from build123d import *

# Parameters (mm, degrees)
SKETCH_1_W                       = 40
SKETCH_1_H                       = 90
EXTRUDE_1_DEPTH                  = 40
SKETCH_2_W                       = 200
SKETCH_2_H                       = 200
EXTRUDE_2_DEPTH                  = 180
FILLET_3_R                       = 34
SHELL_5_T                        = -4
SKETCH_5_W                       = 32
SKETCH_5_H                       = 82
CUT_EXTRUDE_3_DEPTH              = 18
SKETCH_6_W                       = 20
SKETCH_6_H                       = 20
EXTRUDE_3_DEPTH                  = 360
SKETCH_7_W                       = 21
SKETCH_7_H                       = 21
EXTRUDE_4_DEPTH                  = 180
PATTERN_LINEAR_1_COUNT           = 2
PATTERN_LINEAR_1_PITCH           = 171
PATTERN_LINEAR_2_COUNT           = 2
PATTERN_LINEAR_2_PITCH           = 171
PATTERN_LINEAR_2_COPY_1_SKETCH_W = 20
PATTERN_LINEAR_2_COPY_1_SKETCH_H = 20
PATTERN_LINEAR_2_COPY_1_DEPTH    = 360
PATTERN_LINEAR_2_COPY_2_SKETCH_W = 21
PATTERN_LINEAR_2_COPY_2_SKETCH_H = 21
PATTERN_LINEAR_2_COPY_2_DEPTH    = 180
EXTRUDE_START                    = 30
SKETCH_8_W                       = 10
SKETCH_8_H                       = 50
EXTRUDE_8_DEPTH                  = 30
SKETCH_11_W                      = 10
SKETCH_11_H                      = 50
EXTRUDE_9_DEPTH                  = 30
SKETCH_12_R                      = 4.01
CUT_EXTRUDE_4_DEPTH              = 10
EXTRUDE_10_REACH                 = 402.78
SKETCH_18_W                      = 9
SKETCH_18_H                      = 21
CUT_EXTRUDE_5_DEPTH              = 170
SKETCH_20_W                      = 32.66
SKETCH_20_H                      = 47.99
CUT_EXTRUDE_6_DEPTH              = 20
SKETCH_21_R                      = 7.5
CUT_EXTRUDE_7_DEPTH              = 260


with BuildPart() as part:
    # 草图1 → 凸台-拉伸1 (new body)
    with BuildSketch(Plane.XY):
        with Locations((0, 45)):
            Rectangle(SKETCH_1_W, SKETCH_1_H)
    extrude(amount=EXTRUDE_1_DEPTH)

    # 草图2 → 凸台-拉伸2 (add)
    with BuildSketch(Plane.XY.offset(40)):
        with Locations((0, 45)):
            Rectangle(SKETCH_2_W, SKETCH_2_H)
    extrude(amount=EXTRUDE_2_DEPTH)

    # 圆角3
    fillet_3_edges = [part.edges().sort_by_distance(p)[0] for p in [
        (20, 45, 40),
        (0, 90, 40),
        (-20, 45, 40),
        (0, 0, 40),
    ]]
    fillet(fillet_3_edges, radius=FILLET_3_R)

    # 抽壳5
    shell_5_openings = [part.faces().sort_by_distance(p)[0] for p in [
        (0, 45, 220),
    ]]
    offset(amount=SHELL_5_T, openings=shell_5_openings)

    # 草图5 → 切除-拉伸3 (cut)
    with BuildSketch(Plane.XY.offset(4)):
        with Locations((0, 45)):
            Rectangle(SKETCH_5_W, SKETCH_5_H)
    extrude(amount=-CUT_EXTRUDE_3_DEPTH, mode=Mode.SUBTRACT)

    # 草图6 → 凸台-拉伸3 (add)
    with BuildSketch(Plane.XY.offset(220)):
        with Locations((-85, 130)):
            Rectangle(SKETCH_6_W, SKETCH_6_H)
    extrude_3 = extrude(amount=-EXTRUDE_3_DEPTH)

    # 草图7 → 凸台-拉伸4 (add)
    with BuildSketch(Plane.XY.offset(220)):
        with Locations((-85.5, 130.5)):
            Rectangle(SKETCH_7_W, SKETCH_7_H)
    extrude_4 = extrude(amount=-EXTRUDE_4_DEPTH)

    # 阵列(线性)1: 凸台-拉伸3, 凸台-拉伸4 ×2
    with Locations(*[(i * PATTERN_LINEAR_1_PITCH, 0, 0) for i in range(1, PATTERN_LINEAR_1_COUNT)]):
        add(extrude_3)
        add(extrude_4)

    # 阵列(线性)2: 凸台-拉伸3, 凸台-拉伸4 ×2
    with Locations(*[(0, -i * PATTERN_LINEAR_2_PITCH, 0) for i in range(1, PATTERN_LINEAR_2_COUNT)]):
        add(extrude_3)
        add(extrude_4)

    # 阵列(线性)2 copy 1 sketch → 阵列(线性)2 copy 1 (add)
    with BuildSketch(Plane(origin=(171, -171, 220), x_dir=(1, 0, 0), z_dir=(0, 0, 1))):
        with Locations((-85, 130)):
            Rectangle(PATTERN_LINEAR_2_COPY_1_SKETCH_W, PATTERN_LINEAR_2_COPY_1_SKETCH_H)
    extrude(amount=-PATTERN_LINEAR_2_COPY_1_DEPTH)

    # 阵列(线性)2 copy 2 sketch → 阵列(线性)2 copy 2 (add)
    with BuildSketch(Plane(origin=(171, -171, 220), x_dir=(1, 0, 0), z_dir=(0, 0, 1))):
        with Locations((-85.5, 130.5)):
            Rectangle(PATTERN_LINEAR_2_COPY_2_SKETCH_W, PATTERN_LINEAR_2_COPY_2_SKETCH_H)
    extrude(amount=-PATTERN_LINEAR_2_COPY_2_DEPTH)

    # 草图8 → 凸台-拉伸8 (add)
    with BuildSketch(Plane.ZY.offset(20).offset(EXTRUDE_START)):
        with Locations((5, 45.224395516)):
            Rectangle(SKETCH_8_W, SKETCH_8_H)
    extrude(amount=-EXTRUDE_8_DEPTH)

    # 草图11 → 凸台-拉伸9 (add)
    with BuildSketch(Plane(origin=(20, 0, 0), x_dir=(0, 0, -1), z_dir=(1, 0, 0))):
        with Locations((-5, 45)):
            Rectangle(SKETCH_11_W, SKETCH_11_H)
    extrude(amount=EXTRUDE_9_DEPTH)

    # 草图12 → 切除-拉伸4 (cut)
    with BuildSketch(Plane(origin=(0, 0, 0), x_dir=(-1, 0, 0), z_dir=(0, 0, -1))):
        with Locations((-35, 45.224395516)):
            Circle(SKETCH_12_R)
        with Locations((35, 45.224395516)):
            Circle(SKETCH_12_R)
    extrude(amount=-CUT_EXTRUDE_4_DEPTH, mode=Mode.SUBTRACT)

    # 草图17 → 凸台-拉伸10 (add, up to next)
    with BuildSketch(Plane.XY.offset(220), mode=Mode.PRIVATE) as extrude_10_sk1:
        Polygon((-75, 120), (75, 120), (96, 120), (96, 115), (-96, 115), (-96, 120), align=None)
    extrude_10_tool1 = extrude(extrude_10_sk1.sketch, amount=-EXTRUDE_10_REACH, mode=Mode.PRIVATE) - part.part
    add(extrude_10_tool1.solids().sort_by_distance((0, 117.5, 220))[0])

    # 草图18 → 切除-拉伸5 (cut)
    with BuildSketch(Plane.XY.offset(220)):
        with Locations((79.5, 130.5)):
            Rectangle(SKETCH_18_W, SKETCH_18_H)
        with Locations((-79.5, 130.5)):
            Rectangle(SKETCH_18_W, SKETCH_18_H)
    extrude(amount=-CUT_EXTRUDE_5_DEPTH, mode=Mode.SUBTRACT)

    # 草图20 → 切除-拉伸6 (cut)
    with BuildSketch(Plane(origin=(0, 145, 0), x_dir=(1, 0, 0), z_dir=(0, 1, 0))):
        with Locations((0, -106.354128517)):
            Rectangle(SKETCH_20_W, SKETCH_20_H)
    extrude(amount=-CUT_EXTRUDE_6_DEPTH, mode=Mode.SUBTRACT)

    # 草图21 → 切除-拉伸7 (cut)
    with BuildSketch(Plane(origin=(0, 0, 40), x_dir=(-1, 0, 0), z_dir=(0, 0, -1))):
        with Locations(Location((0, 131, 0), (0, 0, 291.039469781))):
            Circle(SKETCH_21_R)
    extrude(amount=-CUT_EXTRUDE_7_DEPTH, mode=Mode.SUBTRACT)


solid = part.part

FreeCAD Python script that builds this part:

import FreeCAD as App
import Part
import Sketcher


def edges_at(feature, points):
    """Names of the edges that pass closest to the given points."""
    edges = feature.Shape.Edges
    near = lambda p: min(range(len(edges)), key=lambda i: edges[i].distToShape(Part.Vertex(*p))[0])
    return sorted({f"Edge{near(p) + 1}" for p in points})


def faces_at(feature, points):
    """Names of the faces that lie closest to the given points."""
    faces = feature.Shape.Faces
    near = lambda p: min(range(len(faces)), key=lambda i: faces[i].distToShape(Part.Vertex(*p))[0])
    return sorted({f"Face{near(p) + 1}" for p in points})

doc = App.newDocument("Part")
body = doc.addObject("PartDesign::Body", "Body")

# Sketch on XY plane
sketch1 = body.newObject("Sketcher::SketchObject", "Sketch")
sketch1.AttachmentSupport = (doc.getObject("XY_Plane"), [""])
sketch1.MapMode = "FlatFace"
sketch1.addGeometry([
    Part.LineSegment(App.Vector(-20, 90, 0), App.Vector(-20, 0, 0)),
    Part.LineSegment(App.Vector(-20, 0, 0), App.Vector(20, 0, 0)),
    Part.LineSegment(App.Vector(20, 0, 0), App.Vector(20, 90, 0)),
    Part.LineSegment(App.Vector(20, 90, 0), App.Vector(-20, 90, 0)),
], False)
sketch1.addConstraint([
    Sketcher.Constraint("Coincident", 0, 2, 1, 1),
    Sketcher.Constraint("Coincident", 1, 2, 2, 1),
    Sketcher.Constraint("Coincident", 2, 2, 3, 1),
    Sketcher.Constraint("Coincident", 3, 2, 0, 1),
    Sketcher.Constraint("Vertical", 0),
    Sketcher.Constraint("Horizontal", 1),
    Sketcher.Constraint("Vertical", 2),
    Sketcher.Constraint("Horizontal", 3),
    Sketcher.Constraint("Symmetric", 0, 2, 1, 2, -1, 1),
    Sketcher.Constraint("DistanceX", 1, 1, 1, 2, 40.0),
    Sketcher.Constraint("DistanceY", 0, 2, 0, 1, 90.0),
])
pad1 = body.newObject("PartDesign::Pad", "Pad")
pad1.Profile = sketch1
pad1.Length = 40

# Sketch on XY plane
sketch2 = body.newObject("Sketcher::SketchObject", "Sketch001")
sketch2.AttachmentSupport = (doc.getObject("XY_Plane"), [""])
sketch2.MapMode = "FlatFace"
sketch2.AttachmentOffset = App.Placement(App.Vector(0, 0, 40), App.Rotation())
sketch2.addGeometry([
    Part.LineSegment(App.Vector(-100, 145, 0), App.Vector(-100, -55, 0)),
    Part.LineSegment(App.Vector(-100, -55, 0), App.Vector(100, -55, 0)),
    Part.LineSegment(App.Vector(100, -55, 0), App.Vector(100, 145, 0)),
    Part.LineSegment(App.Vector(100, 145, 0), App.Vector(-100, 145, 0)),
], False)
sketch2.addConstraint([
    Sketcher.Constraint("Coincident", 0, 2, 1, 1),
    Sketcher.Constraint("Coincident", 1, 2, 2, 1),
    Sketcher.Constraint("Coincident", 2, 2, 3, 1),
    Sketcher.Constraint("Coincident", 3, 2, 0, 1),
    Sketcher.Constraint("Vertical", 0),
    Sketcher.Constraint("Horizontal", 1),
    Sketcher.Constraint("Vertical", 2),
    Sketcher.Constraint("Horizontal", 3),
    Sketcher.Constraint("Equal", 3, 0),
    Sketcher.Constraint("DistanceX", 1, 1, 1, 2, 200.0),
    Sketcher.Constraint("DistanceX", 0, 2, -1, 1, 100.0),
    Sketcher.Constraint("DistanceY", 0, 2, -1, 1, 55.0),
])
pad2 = body.newObject("PartDesign::Pad", "Pad001")
pad2.Profile = sketch2
pad2.Length = 180
doc.recompute()

fillet = body.newObject("PartDesign::Fillet", "Fillet")
fillet.Base = (pad2, edges_at(pad2, [
    (20, 45, 40),
    (0, 90, 40),
    (-20, 45, 40),
    (0, 0, 40),
]))
fillet.Radius = 34
doc.recompute()

thickness = body.newObject("PartDesign::Thickness", "Thickness")
thickness.Base = (fillet, faces_at(fillet, [(0, 45, 220)]))
thickness.Value = 4
thickness.Reversed = True
thickness.Join = "Arc"

# Sketch on XY plane
sketch3 = body.newObject("Sketcher::SketchObject", "Sketch002")
sketch3.AttachmentSupport = (doc.getObject("XY_Plane"), [""])
sketch3.MapMode = "FlatFace"
sketch3.AttachmentOffset = App.Placement(App.Vector(0, 0, 4), App.Rotation())
sketch3.addGeometry([
    Part.LineSegment(App.Vector(-16, 86, 0), App.Vector(-16, 4, 0)),
    Part.LineSegment(App.Vector(-16, 4, 0), App.Vector(16, 4, 0)),
    Part.LineSegment(App.Vector(16, 4, 0), App.Vector(16, 86, 0)),
    Part.LineSegment(App.Vector(16, 86, 0), App.Vector(-16, 86, 0)),
], False)
sketch3.addConstraint([
    Sketcher.Constraint("Coincident", 0, 2, 1, 1),
    Sketcher.Constraint("Coincident", 1, 2, 2, 1),
    Sketcher.Constraint("Coincident", 2, 2, 3, 1),
    Sketcher.Constraint("Coincident", 3, 2, 0, 1),
    Sketcher.Constraint("Vertical", 0),
    Sketcher.Constraint("Horizontal", 1),
    Sketcher.Constraint("Vertical", 2),
    Sketcher.Constraint("Horizontal", 3),
    Sketcher.Constraint("DistanceX", 1, 1, 1, 2, 32.0),
    Sketcher.Constraint("DistanceY", 0, 2, 0, 1, 82.0),
    Sketcher.Constraint("DistanceX", 0, 2, -1, 1, 16.0),
    Sketcher.Constraint("DistanceY", -1, 1, 0, 2, 4.0),
])
pocket1 = body.newObject("PartDesign::Pocket", "Pocket")
pocket1.Profile = sketch3
pocket1.Length = 18

# Sketch on XY plane
sketch4 = body.newObject("Sketcher::SketchObject", "Sketch003")
sketch4.AttachmentSupport = (doc.getObject("XY_Plane"), [""])
sketch4.MapMode = "FlatFace"
sketch4.AttachmentOffset = App.Placement(App.Vector(0, 0, 220), App.Rotation())
sketch4.addGeometry([
    Part.LineSegment(App.Vector(-95, 140, 0), App.Vector(-95, 120, 0)),
    Part.LineSegment(App.Vector(-95, 120, 0), App.Vector(-75, 120, 0)),
    Part.LineSegment(App.Vector(-75, 120, 0), App.Vector(-75, 140, 0)),
    Part.LineSegment(App.Vector(-75, 140, 0), App.Vector(-95, 140, 0)),
], False)
sketch4.addConstraint([
    Sketcher.Constraint("Coincident", 0, 2, 1, 1),
    Sketcher.Constraint("Coincident", 1, 2, 2, 1),
    Sketcher.Constraint("Coincident", 2, 2, 3, 1),
    Sketcher.Constraint("Coincident", 3, 2, 0, 1),
    Sketcher.Constraint("Vertical", 0),
    Sketcher.Constraint("Horizontal", 1),
    Sketcher.Constraint("Vertical", 2),
    Sketcher.Constraint("Horizontal", 3),
    Sketcher.Constraint("Equal", 3, 0),
    Sketcher.Constraint("DistanceX", 1, 1, 1, 2, 20.0),
    Sketcher.Constraint("DistanceX", 0, 2, -1, 1, 95.0),
    Sketcher.Constraint("DistanceY", -1, 1, 0, 2, 120.0),
])
pad3 = body.newObject("PartDesign::Pad", "Pad002")
pad3.Profile = sketch4
pad3.Length = 360
pad3.Reversed = True

# Sketch on XY plane
sketch5 = body.newObject("Sketcher::SketchObject", "Sketch004")
sketch5.AttachmentSupport = (doc.getObject("XY_Plane"), [""])
sketch5.MapMode = "FlatFace"
sketch5.AttachmentOffset = App.Placement(App.Vector(0, 0, 220), App.Rotation())
sketch5.addGeometry([
    Part.LineSegment(App.Vector(-96, 141, 0), App.Vector(-96, 120, 0)),
    Part.LineSegment(App.Vector(-96, 120, 0), App.Vector(-75, 120, 0)),
    Part.LineSegment(App.Vector(-75, 120, 0), App.Vector(-75, 141, 0)),
    Part.LineSegment(App.Vector(-75, 141, 0), App.Vector(-96, 141, 0)),
], False)
sketch5.addConstraint([
    Sketcher.Constraint("Coincident", 0, 2, 1, 1),
    Sketcher.Constraint("Coincident", 1, 2, 2, 1),
    Sketcher.Constraint("Coincident", 2, 2, 3, 1),
    Sketcher.Constraint("Coincident", 3, 2, 0, 1),
    Sketcher.Constraint("Vertical", 0),
    Sketcher.Constraint("Horizontal", 1),
    Sketcher.Constraint("Vertical", 2),
    Sketcher.Constraint("Horizontal", 3),
    Sketcher.Constraint("Equal", 3, 0),
    Sketcher.Constraint("DistanceX", 1, 1, 1, 2, 21.0),
    Sketcher.Constraint("DistanceX", 0, 2, -1, 1, 96.0),
    Sketcher.Constraint("DistanceY", -1, 1, 0, 2, 120.0),
])
pad4 = body.newObject("PartDesign::Pad", "Pad003")
pad4.Profile = sketch5
pad4.Length = 180
pad4.Reversed = True
doc.recompute()

linearpattern = body.newObject("PartDesign::LinearPattern", "LinearPattern")
linearpattern.Originals = [pad3, pad4]
linearpattern.Direction = (doc.getObject("X_Axis"), [""])
linearpattern.Mode = "offset"
linearpattern.Offset = 171
linearpattern.Occurrences = 2
body.Tip = linearpattern
doc.recompute()

linearpattern2 = body.newObject("PartDesign::LinearPattern", "LinearPattern001")
linearpattern2.Originals = [pad3, pad4]
linearpattern2.Direction = (doc.getObject("Y_Axis"), [""])
linearpattern2.Mode = "offset"
linearpattern2.Offset = 171
linearpattern2.Occurrences = 2
linearpattern2.Reversed = True
body.Tip = linearpattern2

# Sketch on XY plane
sketch6 = body.newObject("Sketcher::SketchObject", "Sketch005")
sketch6.AttachmentSupport = (doc.getObject("XY_Plane"), [""])
sketch6.MapMode = "FlatFace"
sketch6.AttachmentOffset = App.Placement(App.Vector(0, 0, 220), App.Rotation())
sketch6.addGeometry([
    Part.LineSegment(App.Vector(76, -31, 0), App.Vector(76, -51, 0)),
    Part.LineSegment(App.Vector(76, -51, 0), App.Vector(96, -51, 0)),
    Part.LineSegment(App.Vector(96, -51, 0), App.Vector(96, -31, 0)),
    Part.LineSegment(App.Vector(96, -31, 0), App.Vector(76, -31, 0)),
], False)
sketch6.addConstraint([
    Sketcher.Constraint("Coincident", 0, 2, 1, 1),
    Sketcher.Constraint("Coincident", 1, 2, 2, 1),
    Sketcher.Constraint("Coincident", 2, 2, 3, 1),
    Sketcher.Constraint("Coincident", 3, 2, 0, 1),
    Sketcher.Constraint("Vertical", 0),
    Sketcher.Constraint("Horizontal", 1),
    Sketcher.Constraint("Vertical", 2),
    Sketcher.Constraint("Horizontal", 3),
    Sketcher.Constraint("Equal", 3, 0),
    Sketcher.Constraint("DistanceX", 1, 1, 1, 2, 20.0),
    Sketcher.Constraint("DistanceX", -1, 1, 0, 2, 76.0),
    Sketcher.Constraint("DistanceY", 0, 2, -1, 1, 51.0),
])
pad5 = body.newObject("PartDesign::Pad", "Pad004")
pad5.Profile = sketch6
pad5.Length = 360
pad5.Reversed = True

# Sketch on XY plane
sketch7 = body.newObject("Sketcher::SketchObject", "Sketch006")
sketch7.AttachmentSupport = (doc.getObject("XY_Plane"), [""])
sketch7.MapMode = "FlatFace"
sketch7.AttachmentOffset = App.Placement(App.Vector(0, 0, 220), App.Rotation())
sketch7.addGeometry([
    Part.LineSegment(App.Vector(75, -30, 0), App.Vector(75, -51, 0)),
    Part.LineSegment(App.Vector(75, -51, 0), App.Vector(96, -51, 0)),
    Part.LineSegment(App.Vector(96, -51, 0), App.Vector(96, -30, 0)),
    Part.LineSegment(App.Vector(96, -30, 0), App.Vector(75, -30, 0)),
], False)
sketch7.addConstraint([
    Sketcher.Constraint("Coincident", 0, 2, 1, 1),
    Sketcher.Constraint("Coincident", 1, 2, 2, 1),
    Sketcher.Constraint("Coincident", 2, 2, 3, 1),
    Sketcher.Constraint("Coincident", 3, 2, 0, 1),
    Sketcher.Constraint("Vertical", 0),
    Sketcher.Constraint("Horizontal", 1),
    Sketcher.Constraint("Vertical", 2),
    Sketcher.Constraint("Horizontal", 3),
    Sketcher.Constraint("Equal", 3, 0),
    Sketcher.Constraint("DistanceX", 1, 1, 1, 2, 21.0),
    Sketcher.Constraint("DistanceX", -1, 1, 0, 2, 75.0),
    Sketcher.Constraint("DistanceY", 0, 2, -1, 1, 51.0),
])
pad6 = body.newObject("PartDesign::Pad", "Pad005")
pad6.Profile = sketch7
pad6.Length = 180
pad6.Reversed = True

# Sketch on YZ plane
sketch8 = body.newObject("Sketcher::SketchObject", "Sketch007")
sketch8.AttachmentSupport = (doc.getObject("YZ_Plane"), [""])
sketch8.MapMode = "FlatFace"
sketch8.AttachmentOffset = App.Placement(App.Vector(0, 0, -50), App.Rotation())
sketch8.addGeometry([
    Part.LineSegment(App.Vector(70, 0, 0), App.Vector(20, 0, 0)),
    Part.LineSegment(App.Vector(20, 0, 0), App.Vector(20, 10, 0)),
    Part.LineSegment(App.Vector(20, 10, 0), App.Vector(70, 10, 0)),
    Part.LineSegment(App.Vector(70, 10, 0), App.Vector(70, 0, 0)),
], False)
sketch8.addConstraint([
    Sketcher.Constraint("Coincident", 0, 2, 1, 1),
    Sketcher.Constraint("Coincident", 1, 2, 2, 1),
    Sketcher.Constraint("Coincident", 2, 2, 3, 1),
    Sketcher.Constraint("Coincident", 3, 2, 0, 1),
    Sketcher.Constraint("Horizontal", 0),
    Sketcher.Constraint("Vertical", 1),
    Sketcher.Constraint("Horizontal", 2),
    Sketcher.Constraint("Vertical", 3),
    Sketcher.Constraint("PointOnObject", 0, 2, -1),
    Sketcher.Constraint("DistanceX", 0, 2, 0, 1, 50.0),
    Sketcher.Constraint("DistanceY", 1, 1, 1, 2, 10.0),
    Sketcher.Constraint("DistanceX", -1, 1, 0, 2, 20.224396),
])
pad7 = body.newObject("PartDesign::Pad", "Pad006")
pad7.Profile = sketch8
pad7.Length = 30

# Sketch on YZ plane
sketch9 = body.newObject("Sketcher::SketchObject", "Sketch008")
sketch9.AttachmentSupport = (doc.getObject("YZ_Plane"), [""])
sketch9.MapMode = "FlatFace"
sketch9.AttachmentOffset = App.Placement(App.Vector(0, 0, 20), App.Rotation())
sketch9.addGeometry([
    Part.LineSegment(App.Vector(70, 10, 0), App.Vector(20, 10, 0)),
    Part.LineSegment(App.Vector(20, 10, 0), App.Vector(20, 0, 0)),
    Part.LineSegment(App.Vector(20, 0, 0), App.Vector(70, 0, 0)),
    Part.LineSegment(App.Vector(70, 0, 0), App.Vector(70, 10, 0)),
], False)
sketch9.addConstraint([
    Sketcher.Constraint("Coincident", 0, 2, 1, 1),
    Sketcher.Constraint("Coincident", 1, 2, 2, 1),
    Sketcher.Constraint("Coincident", 2, 2, 3, 1),
    Sketcher.Constraint("Coincident", 3, 2, 0, 1),
    Sketcher.Constraint("Horizontal", 0),
    Sketcher.Constraint("Vertical", 1),
    Sketcher.Constraint("Horizontal", 2),
    Sketcher.Constraint("Vertical", 3),
    Sketcher.Constraint("PointOnObject", 1, 2, -1),
    Sketcher.Constraint("DistanceX", 0, 2, 0, 1, 50.0),
    Sketcher.Constraint("DistanceY", 1, 2, 1, 1, 10.0),
    Sketcher.Constraint("DistanceX", -1, 1, 0, 2, 20.0),
])
pad8 = body.newObject("PartDesign::Pad", "Pad007")
pad8.Profile = sketch9
pad8.Length = 30

# Sketch on XY plane
sketch10 = body.newObject("Sketcher::SketchObject", "Sketch009")
sketch10.AttachmentSupport = (doc.getObject("XY_Plane"), [""])
sketch10.MapMode = "FlatFace"
sketch10.addGeometry([
    Part.Circle(App.Vector(35, 45.2, 0), App.Vector(0, 0, 1), 4),
    Part.Circle(App.Vector(-35, 45.2, 0), App.Vector(0, 0, 1), 4),
], False)
sketch10.addConstraint([
    Sketcher.Constraint("Equal", 0, 1),
    Sketcher.Constraint("Symmetric", 0, 3, 1, 3, -2),
    Sketcher.Constraint("Diameter", 0, 8.02),
    Sketcher.Constraint("DistanceX", -1, 1, 0, 3, 35.0),
    Sketcher.Constraint("DistanceY", -1, 1, 0, 3, 45.224396),
])
pocket2 = body.newObject("PartDesign::Pocket", "Pocket001")
pocket2.Profile = sketch10
pocket2.Length = 10
pocket2.Reversed = True

# Sketch on XY plane
sketch11 = body.newObject("Sketcher::SketchObject", "Sketch010")
sketch11.AttachmentSupport = (doc.getObject("XY_Plane"), [""])
sketch11.MapMode = "FlatFace"
sketch11.AttachmentOffset = App.Placement(App.Vector(0, 0, 220), App.Rotation())
sketch11.addGeometry([
    Part.LineSegment(App.Vector(96, 120, 0), App.Vector(-96, 120, 0)),
    Part.LineSegment(App.Vector(-96, 120, 0), App.Vector(-96, 115, 0)),
    Part.LineSegment(App.Vector(-96, 115, 0), App.Vector(96, 115, 0)),
    Part.LineSegment(App.Vector(96, 115, 0), App.Vector(96, 120, 0)),
], False)
sketch11.addConstraint([
    Sketcher.Constraint("Coincident", 0, 2, 1, 1),
    Sketcher.Constraint("Coincident", 1, 2, 2, 1),
    Sketcher.Constraint("Coincident", 2, 2, 3, 1),
    Sketcher.Constraint("Coincident", 3, 2, 0, 1),
    Sketcher.Constraint("Horizontal", 0),
    Sketcher.Constraint("Vertical", 1),
    Sketcher.Constraint("Horizontal", 2),
    Sketcher.Constraint("Vertical", 3),
    Sketcher.Constraint("DistanceX", 0, 2, 0, 1, 192.0),
    Sketcher.Constraint("DistanceY", 1, 2, 1, 1, 5.0),
    Sketcher.Constraint("DistanceX", 0, 2, -1, 1, 96.0),
    Sketcher.Constraint("DistanceY", -1, 1, 0, 2, 120.0),
])
pad9 = body.newObject("PartDesign::Pad", "Pad008")
pad9.Profile = sketch11
pad9.Type = "UpToFirst"
pad9.Reversed = True

# Sketch on XY plane
sketch12 = body.newObject("Sketcher::SketchObject", "Sketch011")
sketch12.AttachmentSupport = (doc.getObject("XY_Plane"), [""])
sketch12.MapMode = "FlatFace"
sketch12.AttachmentOffset = App.Placement(App.Vector(0, 0, 220), App.Rotation())
sketch12.addGeometry([
    Part.LineSegment(App.Vector(75, 141, 0), App.Vector(75, 120, 0)),  # 0
    Part.LineSegment(App.Vector(75, 120, 0), App.Vector(84, 120, 0)),  # 1
    Part.LineSegment(App.Vector(84, 120, 0), App.Vector(84, 141, 0)),  # 2
    Part.LineSegment(App.Vector(84, 141, 0), App.Vector(75, 141, 0)),  # 3
    Part.LineSegment(App.Vector(-84, 141, 0), App.Vector(-84, 120, 0)),  # 4
    Part.LineSegment(App.Vector(-84, 120, 0), App.Vector(-75, 120, 0)),  # 5
    Part.LineSegment(App.Vector(-75, 120, 0), App.Vector(-75, 141, 0)),  # 6
    Part.LineSegment(App.Vector(-75, 141, 0), App.Vector(-84, 141, 0)),  # 7
], False)
sketch12.addConstraint([
    Sketcher.Constraint("Coincident", 0, 2, 1, 1),
    Sketcher.Constraint("Coincident", 1, 2, 2, 1),
    Sketcher.Constraint("Coincident", 2, 2, 3, 1),
    Sketcher.Constraint("Coincident", 3, 2, 0, 1),
    Sketcher.Constraint("Coincident", 4, 2, 5, 1),
    Sketcher.Constraint("Coincident", 5, 2, 6, 1),
    Sketcher.Constraint("Coincident", 6, 2, 7, 1),
    Sketcher.Constraint("Coincident", 7, 2, 4, 1),
    Sketcher.Constraint("Vertical", 0),
    Sketcher.Constraint("Horizontal", 1),
    Sketcher.Constraint("Vertical", 2),
    Sketcher.Constraint("Horizontal", 3),
    Sketcher.Constraint("Vertical", 4),
    Sketcher.Constraint("Horizontal", 5),
    Sketcher.Constraint("Vertical", 6),
    Sketcher.Constraint("Horizontal", 7),
    Sketcher.Constraint("Symmetric", 1, 2, 4, 2, -2),
    Sketcher.Constraint("Symmetric", 3, 2, 6, 2, -2),
    Sketcher.Constraint("DistanceX", 1, 1, 1, 2, 9.0),
    Sketcher.Constraint("DistanceY", 0, 2, 0, 1, 21.0),
    Sketcher.Constraint("DistanceX", -1, 1, 0, 2, 75.0),
    Sketcher.Constraint("DistanceY", -1, 1, 0, 2, 120.0),
])
pocket3 = body.newObject("PartDesign::Pocket", "Pocket002")
pocket3.Profile = sketch12
pocket3.Length = 170

# Sketch on XZ plane
sketch13 = body.newObject("Sketcher::SketchObject", "Sketch012")
sketch13.AttachmentSupport = (doc.getObject("XZ_Plane"), [""])
sketch13.MapMode = "FlatFace"
sketch13.AttachmentOffset = App.Placement(App.Vector(0, 0, -145), App.Rotation())
sketch13.addGeometry([
    Part.LineSegment(App.Vector(-16, 82, 0), App.Vector(-16, 130, 0)),
    Part.LineSegment(App.Vector(-16, 130, 0), App.Vector(16, 130, 0)),
    Part.LineSegment(App.Vector(16, 130, 0), App.Vector(16, 82, 0)),
    Part.LineSegment(App.Vector(16, 82, 0), App.Vector(-16, 82, 0)),
], False)
sketch13.addConstraint([
    Sketcher.Constraint("Coincident", 0, 2, 1, 1),
    Sketcher.Constraint("Coincident", 1, 2, 2, 1),
    Sketcher.Constraint("Coincident", 2, 2, 3, 1),
    Sketcher.Constraint("Coincident", 3, 2, 0, 1),
    Sketcher.Constraint("Vertical", 0),
    Sketcher.Constraint("Horizontal", 1),
    Sketcher.Constraint("Vertical", 2),
    Sketcher.Constraint("Horizontal", 3),
    Sketcher.Constraint("DistanceX", 1, 1, 1, 2, 32.66),
    Sketcher.Constraint("DistanceY", 0, 1, 0, 2, 47.99),
    Sketcher.Constraint("DistanceX", 0, 2, -1, 1, 16.33),
    Sketcher.Constraint("DistanceY", -1, 1, 0, 2, 130.349129),
])
pocket4 = body.newObject("PartDesign::Pocket", "Pocket003")
pocket4.Profile = sketch13
pocket4.Length = 20
pocket4.Reversed = True

# Sketch on XY plane
sketch14 = body.newObject("Sketcher::SketchObject", "Sketch013")
sketch14.AttachmentSupport = (doc.getObject("XY_Plane"), [""])
sketch14.MapMode = "FlatFace"
sketch14.AttachmentOffset = App.Placement(App.Vector(0, 0, 40), App.Rotation())
sketch14.addGeometry(Part.Circle(App.Vector(0, 131, 0), App.Vector(0, 0, 1), 8), False)
sketch14.addConstraint([
    Sketcher.Constraint("PointOnObject", 0, 3, -2),
    Sketcher.Constraint("Diameter", 0, 15.0),
    Sketcher.Constraint("DistanceY", -1, 1, 0, 3, 131.0),
])
pocket5 = body.newObject("PartDesign::Pocket", "Pocket004")
pocket5.Profile = sketch14
pocket5.Length = 260
pocket5.Reversed = True

doc.recompute()
